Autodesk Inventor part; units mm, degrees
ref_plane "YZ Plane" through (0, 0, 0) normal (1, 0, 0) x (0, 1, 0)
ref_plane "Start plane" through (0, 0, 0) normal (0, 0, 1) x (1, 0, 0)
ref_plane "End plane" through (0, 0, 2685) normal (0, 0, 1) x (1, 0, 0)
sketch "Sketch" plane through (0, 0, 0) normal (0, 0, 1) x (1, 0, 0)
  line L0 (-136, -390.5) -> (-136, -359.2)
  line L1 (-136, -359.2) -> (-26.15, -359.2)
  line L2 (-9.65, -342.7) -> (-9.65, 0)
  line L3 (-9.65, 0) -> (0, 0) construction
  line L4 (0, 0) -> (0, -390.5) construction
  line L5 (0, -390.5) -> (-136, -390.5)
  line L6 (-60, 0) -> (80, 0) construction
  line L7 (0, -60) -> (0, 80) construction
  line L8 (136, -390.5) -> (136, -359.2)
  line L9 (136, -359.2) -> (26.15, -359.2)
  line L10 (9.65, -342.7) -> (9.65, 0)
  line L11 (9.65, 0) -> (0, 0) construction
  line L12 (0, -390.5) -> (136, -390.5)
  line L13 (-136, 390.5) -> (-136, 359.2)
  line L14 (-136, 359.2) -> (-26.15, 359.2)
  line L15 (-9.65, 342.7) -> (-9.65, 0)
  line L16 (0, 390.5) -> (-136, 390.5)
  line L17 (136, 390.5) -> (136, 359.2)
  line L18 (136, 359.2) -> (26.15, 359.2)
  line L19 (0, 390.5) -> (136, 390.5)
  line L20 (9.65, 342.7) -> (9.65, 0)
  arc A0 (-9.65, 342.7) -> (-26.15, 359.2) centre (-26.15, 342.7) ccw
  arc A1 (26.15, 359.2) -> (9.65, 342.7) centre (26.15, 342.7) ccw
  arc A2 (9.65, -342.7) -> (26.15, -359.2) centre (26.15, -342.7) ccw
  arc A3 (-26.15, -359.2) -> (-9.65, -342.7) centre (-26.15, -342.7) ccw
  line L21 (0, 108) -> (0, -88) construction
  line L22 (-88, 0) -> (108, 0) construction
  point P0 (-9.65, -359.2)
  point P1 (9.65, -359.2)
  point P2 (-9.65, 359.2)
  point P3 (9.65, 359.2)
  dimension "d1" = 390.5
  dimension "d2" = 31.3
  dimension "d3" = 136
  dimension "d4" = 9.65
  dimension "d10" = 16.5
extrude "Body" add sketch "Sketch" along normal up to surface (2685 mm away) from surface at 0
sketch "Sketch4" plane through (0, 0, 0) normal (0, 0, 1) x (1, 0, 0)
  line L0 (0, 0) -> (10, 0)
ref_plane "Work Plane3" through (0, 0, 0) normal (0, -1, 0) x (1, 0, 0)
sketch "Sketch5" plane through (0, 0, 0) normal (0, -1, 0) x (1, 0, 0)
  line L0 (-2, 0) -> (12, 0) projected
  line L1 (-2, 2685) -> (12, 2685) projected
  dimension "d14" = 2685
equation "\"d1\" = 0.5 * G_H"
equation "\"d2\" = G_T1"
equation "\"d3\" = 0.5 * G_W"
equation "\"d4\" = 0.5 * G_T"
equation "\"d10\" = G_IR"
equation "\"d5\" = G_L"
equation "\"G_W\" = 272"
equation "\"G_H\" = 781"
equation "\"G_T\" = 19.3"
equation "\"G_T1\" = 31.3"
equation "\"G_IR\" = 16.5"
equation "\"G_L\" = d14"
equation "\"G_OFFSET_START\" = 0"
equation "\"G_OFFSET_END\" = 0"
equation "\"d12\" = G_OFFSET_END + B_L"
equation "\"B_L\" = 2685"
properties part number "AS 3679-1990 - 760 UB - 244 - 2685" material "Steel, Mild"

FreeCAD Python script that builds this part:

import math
import FreeCAD as App
import Part
import Sketcher
Q = App.Units.Quantity

doc = App.newDocument("Part")
body = doc.addObject("PartDesign::Body", "Body")

# Sketch on XY plane
sketch1 = body.newObject("Sketcher::SketchObject", "Sketch")
sketch1.AttachmentSupport = (doc.getObject("XY_Plane"), [""])
sketch1.MapMode = "FlatFace"
sketch1.addGeometry([
    Part.LineSegment(App.Vector(-136, -359, 0), App.Vector(-136, -390, 0)),  # 0
    Part.LineSegment(App.Vector(-136, -390, 0), App.Vector(136, -390, 0)),  # 1
    Part.LineSegment(App.Vector(136, -390, 0), App.Vector(136, -359, 0)),  # 2
    Part.LineSegment(App.Vector(136, -359, 0), App.Vector(26, -359, 0)),  # 3
    Part.ArcOfCircle(Part.Circle(App.Vector(26, -343, 0), App.Vector(0, 0, 1), 16), math.radians(180), math.radians(270)),  # 4
    Part.LineSegment(App.Vector(10, -343, 0), App.Vector(10, 343, 0)),  # 5
    Part.ArcOfCircle(Part.Circle(App.Vector(26, 343, 0), App.Vector(0, 0, 1), 16), math.radians(90), math.radians(180)),  # 6
    Part.LineSegment(App.Vector(26, 359, 0), App.Vector(136, 359, 0)),  # 7
    Part.LineSegment(App.Vector(136, 359, 0), App.Vector(136, 390, 0)),  # 8
    Part.LineSegment(App.Vector(136, 390, 0), App.Vector(-136, 390, 0)),  # 9
    Part.LineSegment(App.Vector(-136, 390, 0), App.Vector(-136, 359, 0)),  # 10
    Part.LineSegment(App.Vector(-136, 359, 0), App.Vector(-26, 359, 0)),  # 11
    Part.ArcOfCircle(Part.Circle(App.Vector(-26, 343, 0), App.Vector(0, 0, 1), 16), math.radians(0), math.radians(90)),  # 12
    Part.LineSegment(App.Vector(-10, 343, 0), App.Vector(-10, -343, 0)),  # 13
    Part.ArcOfCircle(Part.Circle(App.Vector(-26, -343, 0), App.Vector(0, 0, 1), 16), math.radians(-90), math.radians(0)),  # 14
    Part.LineSegment(App.Vector(-26, -359, 0), App.Vector(-136, -359, 0)),  # 15
], False)
sketch1.addConstraint([
    Sketcher.Constraint("Coincident", 0, 2, 1, 1),
    Sketcher.Constraint("Coincident", 1, 2, 2, 1),
    Sketcher.Constraint("Coincident", 2, 2, 3, 1),
    Sketcher.Constraint("Tangent", 3, 2, 4, 2),
    Sketcher.Constraint("Tangent", 4, 1, 5, 1),
    Sketcher.Constraint("Tangent", 5, 2, 6, 2),
    Sketcher.Constraint("Tangent", 6, 1, 7, 1),
    Sketcher.Constraint("Coincident", 7, 2, 8, 1),
    Sketcher.Constraint("Coincident", 8, 2, 9, 1),
    Sketcher.Constraint("Coincident", 9, 2, 10, 1),
    Sketcher.Constraint("Coincident", 10, 2, 11, 1),
    Sketcher.Constraint("Tangent", 11, 2, 12, 2),
    Sketcher.Constraint("Tangent", 12, 1, 13, 1),
    Sketcher.Constraint("Tangent", 13, 2, 14, 2),
    Sketcher.Constraint("Tangent", 14, 1, 15, 1),
    Sketcher.Constraint("Coincident", 15, 2, 0, 1),
    Sketcher.Constraint("Vertical", 0),
    Sketcher.Constraint("Horizontal", 1),
    Sketcher.Constraint("Vertical", 2),
    Sketcher.Constraint("Horizontal", 3),
    Sketcher.Constraint("Vertical", 5),
    Sketcher.Constraint("Horizontal", 7),
    Sketcher.Constraint("Vertical", 8),
    Sketcher.Constraint("Horizontal", 9),
    Sketcher.Constraint("Vertical", 10),
    Sketcher.Constraint("Horizontal", 11),
    Sketcher.Constraint("Vertical", 13),
    Sketcher.Constraint("Horizontal", 15),
    Sketcher.Constraint("Equal", 4, 6),
    Sketcher.Constraint("Equal", 6, 12),
    Sketcher.Constraint("Equal", 12, 14),
    Sketcher.Constraint("Symmetric", 4, 3, 12, 3, -1, 1),
    Sketcher.Constraint("Symmetric", 0, 2, 8, 2, -1, 1),
    Sketcher.Constraint("Symmetric", 7, 2, 10, 2, -2),
    Sketcher.Constraint("Symmetric", 2, 2, 15, 2, -2),
    Sketcher.Constraint("Radius", 4, Q("16.5 mm")),
    Sketcher.Constraint("DistanceY", 0, 2, 0, 1, Q("31.3 mm")),
    Sketcher.Constraint("DistanceX", 0, 2, -1, 1, Q("136 mm")),
    Sketcher.Constraint("DistanceY", 0, 2, -1, 1, Q("390.5 mm")),
    Sketcher.Constraint("DistanceX", -1, 1, 4, 1, Q("9.65 mm")),
])
pad1 = body.newObject("PartDesign::Pad", "Pad")
pad1.Profile = sketch1
pad1.Length = 2685

doc.recompute()
